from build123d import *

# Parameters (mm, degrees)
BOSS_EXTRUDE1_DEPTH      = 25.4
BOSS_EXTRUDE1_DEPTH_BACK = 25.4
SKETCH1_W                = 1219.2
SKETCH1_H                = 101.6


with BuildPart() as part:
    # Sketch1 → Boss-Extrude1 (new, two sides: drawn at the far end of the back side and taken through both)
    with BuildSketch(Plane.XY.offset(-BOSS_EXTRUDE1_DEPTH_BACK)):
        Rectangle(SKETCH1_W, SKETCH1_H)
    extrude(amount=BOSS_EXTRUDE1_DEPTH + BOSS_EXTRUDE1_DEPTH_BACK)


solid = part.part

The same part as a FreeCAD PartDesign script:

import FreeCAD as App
import Part
import Sketcher
Q = App.Units.Quantity

doc = App.newDocument("Part")
body = doc.addObject("PartDesign::Body", "Body")

sketch1 = doc.addObject("Sketcher::SketchObject", "Sketch")
body.addObject(sketch1)
sketch1.AttachmentSupport = (doc.XY_Plane, [""])
sketch1.MapMode = "FlatFace"
sketch1.addGeometry([
    Part.LineSegment(App.Vector(-609.6, 50.8, 0), App.Vector(-609.6, -50.8, 0)),
    Part.LineSegment(App.Vector(-609.6, -50.8, 0), App.Vector(609.6, -50.8, 0)),
    Part.LineSegment(App.Vector(609.6, -50.8, 0), App.Vector(609.6, 50.8, 0)),
    Part.LineSegment(App.Vector(609.6, 50.8, 0), App.Vector(-609.6, 50.8, 0)),
], False)
sketch1.addConstraint([
    Sketcher.Constraint("Coincident", 0, 2, 1, 1),
    Sketcher.Constraint("Coincident", 1, 2, 2, 1),
    Sketcher.Constraint("Coincident", 2, 2, 3, 1),
    Sketcher.Constraint("Coincident", 3, 2, 0, 1),
    Sketcher.Constraint("Vertical", 0),
    Sketcher.Constraint("Horizontal", 1),
    Sketcher.Constraint("Vertical", 2),
    Sketcher.Constraint("Horizontal", 3),
    Sketcher.Constraint("Symmetric", 0, 2, 2, 2, -1, 1),
    Sketcher.Constraint("DistanceX", 1, 1, 1, 2, Q("48 in")),
    Sketcher.Constraint("DistanceY", 0, 2, 0, 1, Q("4 in")),
])
pad1 = doc.addObject("PartDesign::Pad", "Pad")
body.addObject(pad1)
pad1.Profile = sketch1
pad1.Type = "TwoLengths"
pad1.Length = Q("1 in")
pad1.Length2 = Q("1 in")

doc.recompute()
